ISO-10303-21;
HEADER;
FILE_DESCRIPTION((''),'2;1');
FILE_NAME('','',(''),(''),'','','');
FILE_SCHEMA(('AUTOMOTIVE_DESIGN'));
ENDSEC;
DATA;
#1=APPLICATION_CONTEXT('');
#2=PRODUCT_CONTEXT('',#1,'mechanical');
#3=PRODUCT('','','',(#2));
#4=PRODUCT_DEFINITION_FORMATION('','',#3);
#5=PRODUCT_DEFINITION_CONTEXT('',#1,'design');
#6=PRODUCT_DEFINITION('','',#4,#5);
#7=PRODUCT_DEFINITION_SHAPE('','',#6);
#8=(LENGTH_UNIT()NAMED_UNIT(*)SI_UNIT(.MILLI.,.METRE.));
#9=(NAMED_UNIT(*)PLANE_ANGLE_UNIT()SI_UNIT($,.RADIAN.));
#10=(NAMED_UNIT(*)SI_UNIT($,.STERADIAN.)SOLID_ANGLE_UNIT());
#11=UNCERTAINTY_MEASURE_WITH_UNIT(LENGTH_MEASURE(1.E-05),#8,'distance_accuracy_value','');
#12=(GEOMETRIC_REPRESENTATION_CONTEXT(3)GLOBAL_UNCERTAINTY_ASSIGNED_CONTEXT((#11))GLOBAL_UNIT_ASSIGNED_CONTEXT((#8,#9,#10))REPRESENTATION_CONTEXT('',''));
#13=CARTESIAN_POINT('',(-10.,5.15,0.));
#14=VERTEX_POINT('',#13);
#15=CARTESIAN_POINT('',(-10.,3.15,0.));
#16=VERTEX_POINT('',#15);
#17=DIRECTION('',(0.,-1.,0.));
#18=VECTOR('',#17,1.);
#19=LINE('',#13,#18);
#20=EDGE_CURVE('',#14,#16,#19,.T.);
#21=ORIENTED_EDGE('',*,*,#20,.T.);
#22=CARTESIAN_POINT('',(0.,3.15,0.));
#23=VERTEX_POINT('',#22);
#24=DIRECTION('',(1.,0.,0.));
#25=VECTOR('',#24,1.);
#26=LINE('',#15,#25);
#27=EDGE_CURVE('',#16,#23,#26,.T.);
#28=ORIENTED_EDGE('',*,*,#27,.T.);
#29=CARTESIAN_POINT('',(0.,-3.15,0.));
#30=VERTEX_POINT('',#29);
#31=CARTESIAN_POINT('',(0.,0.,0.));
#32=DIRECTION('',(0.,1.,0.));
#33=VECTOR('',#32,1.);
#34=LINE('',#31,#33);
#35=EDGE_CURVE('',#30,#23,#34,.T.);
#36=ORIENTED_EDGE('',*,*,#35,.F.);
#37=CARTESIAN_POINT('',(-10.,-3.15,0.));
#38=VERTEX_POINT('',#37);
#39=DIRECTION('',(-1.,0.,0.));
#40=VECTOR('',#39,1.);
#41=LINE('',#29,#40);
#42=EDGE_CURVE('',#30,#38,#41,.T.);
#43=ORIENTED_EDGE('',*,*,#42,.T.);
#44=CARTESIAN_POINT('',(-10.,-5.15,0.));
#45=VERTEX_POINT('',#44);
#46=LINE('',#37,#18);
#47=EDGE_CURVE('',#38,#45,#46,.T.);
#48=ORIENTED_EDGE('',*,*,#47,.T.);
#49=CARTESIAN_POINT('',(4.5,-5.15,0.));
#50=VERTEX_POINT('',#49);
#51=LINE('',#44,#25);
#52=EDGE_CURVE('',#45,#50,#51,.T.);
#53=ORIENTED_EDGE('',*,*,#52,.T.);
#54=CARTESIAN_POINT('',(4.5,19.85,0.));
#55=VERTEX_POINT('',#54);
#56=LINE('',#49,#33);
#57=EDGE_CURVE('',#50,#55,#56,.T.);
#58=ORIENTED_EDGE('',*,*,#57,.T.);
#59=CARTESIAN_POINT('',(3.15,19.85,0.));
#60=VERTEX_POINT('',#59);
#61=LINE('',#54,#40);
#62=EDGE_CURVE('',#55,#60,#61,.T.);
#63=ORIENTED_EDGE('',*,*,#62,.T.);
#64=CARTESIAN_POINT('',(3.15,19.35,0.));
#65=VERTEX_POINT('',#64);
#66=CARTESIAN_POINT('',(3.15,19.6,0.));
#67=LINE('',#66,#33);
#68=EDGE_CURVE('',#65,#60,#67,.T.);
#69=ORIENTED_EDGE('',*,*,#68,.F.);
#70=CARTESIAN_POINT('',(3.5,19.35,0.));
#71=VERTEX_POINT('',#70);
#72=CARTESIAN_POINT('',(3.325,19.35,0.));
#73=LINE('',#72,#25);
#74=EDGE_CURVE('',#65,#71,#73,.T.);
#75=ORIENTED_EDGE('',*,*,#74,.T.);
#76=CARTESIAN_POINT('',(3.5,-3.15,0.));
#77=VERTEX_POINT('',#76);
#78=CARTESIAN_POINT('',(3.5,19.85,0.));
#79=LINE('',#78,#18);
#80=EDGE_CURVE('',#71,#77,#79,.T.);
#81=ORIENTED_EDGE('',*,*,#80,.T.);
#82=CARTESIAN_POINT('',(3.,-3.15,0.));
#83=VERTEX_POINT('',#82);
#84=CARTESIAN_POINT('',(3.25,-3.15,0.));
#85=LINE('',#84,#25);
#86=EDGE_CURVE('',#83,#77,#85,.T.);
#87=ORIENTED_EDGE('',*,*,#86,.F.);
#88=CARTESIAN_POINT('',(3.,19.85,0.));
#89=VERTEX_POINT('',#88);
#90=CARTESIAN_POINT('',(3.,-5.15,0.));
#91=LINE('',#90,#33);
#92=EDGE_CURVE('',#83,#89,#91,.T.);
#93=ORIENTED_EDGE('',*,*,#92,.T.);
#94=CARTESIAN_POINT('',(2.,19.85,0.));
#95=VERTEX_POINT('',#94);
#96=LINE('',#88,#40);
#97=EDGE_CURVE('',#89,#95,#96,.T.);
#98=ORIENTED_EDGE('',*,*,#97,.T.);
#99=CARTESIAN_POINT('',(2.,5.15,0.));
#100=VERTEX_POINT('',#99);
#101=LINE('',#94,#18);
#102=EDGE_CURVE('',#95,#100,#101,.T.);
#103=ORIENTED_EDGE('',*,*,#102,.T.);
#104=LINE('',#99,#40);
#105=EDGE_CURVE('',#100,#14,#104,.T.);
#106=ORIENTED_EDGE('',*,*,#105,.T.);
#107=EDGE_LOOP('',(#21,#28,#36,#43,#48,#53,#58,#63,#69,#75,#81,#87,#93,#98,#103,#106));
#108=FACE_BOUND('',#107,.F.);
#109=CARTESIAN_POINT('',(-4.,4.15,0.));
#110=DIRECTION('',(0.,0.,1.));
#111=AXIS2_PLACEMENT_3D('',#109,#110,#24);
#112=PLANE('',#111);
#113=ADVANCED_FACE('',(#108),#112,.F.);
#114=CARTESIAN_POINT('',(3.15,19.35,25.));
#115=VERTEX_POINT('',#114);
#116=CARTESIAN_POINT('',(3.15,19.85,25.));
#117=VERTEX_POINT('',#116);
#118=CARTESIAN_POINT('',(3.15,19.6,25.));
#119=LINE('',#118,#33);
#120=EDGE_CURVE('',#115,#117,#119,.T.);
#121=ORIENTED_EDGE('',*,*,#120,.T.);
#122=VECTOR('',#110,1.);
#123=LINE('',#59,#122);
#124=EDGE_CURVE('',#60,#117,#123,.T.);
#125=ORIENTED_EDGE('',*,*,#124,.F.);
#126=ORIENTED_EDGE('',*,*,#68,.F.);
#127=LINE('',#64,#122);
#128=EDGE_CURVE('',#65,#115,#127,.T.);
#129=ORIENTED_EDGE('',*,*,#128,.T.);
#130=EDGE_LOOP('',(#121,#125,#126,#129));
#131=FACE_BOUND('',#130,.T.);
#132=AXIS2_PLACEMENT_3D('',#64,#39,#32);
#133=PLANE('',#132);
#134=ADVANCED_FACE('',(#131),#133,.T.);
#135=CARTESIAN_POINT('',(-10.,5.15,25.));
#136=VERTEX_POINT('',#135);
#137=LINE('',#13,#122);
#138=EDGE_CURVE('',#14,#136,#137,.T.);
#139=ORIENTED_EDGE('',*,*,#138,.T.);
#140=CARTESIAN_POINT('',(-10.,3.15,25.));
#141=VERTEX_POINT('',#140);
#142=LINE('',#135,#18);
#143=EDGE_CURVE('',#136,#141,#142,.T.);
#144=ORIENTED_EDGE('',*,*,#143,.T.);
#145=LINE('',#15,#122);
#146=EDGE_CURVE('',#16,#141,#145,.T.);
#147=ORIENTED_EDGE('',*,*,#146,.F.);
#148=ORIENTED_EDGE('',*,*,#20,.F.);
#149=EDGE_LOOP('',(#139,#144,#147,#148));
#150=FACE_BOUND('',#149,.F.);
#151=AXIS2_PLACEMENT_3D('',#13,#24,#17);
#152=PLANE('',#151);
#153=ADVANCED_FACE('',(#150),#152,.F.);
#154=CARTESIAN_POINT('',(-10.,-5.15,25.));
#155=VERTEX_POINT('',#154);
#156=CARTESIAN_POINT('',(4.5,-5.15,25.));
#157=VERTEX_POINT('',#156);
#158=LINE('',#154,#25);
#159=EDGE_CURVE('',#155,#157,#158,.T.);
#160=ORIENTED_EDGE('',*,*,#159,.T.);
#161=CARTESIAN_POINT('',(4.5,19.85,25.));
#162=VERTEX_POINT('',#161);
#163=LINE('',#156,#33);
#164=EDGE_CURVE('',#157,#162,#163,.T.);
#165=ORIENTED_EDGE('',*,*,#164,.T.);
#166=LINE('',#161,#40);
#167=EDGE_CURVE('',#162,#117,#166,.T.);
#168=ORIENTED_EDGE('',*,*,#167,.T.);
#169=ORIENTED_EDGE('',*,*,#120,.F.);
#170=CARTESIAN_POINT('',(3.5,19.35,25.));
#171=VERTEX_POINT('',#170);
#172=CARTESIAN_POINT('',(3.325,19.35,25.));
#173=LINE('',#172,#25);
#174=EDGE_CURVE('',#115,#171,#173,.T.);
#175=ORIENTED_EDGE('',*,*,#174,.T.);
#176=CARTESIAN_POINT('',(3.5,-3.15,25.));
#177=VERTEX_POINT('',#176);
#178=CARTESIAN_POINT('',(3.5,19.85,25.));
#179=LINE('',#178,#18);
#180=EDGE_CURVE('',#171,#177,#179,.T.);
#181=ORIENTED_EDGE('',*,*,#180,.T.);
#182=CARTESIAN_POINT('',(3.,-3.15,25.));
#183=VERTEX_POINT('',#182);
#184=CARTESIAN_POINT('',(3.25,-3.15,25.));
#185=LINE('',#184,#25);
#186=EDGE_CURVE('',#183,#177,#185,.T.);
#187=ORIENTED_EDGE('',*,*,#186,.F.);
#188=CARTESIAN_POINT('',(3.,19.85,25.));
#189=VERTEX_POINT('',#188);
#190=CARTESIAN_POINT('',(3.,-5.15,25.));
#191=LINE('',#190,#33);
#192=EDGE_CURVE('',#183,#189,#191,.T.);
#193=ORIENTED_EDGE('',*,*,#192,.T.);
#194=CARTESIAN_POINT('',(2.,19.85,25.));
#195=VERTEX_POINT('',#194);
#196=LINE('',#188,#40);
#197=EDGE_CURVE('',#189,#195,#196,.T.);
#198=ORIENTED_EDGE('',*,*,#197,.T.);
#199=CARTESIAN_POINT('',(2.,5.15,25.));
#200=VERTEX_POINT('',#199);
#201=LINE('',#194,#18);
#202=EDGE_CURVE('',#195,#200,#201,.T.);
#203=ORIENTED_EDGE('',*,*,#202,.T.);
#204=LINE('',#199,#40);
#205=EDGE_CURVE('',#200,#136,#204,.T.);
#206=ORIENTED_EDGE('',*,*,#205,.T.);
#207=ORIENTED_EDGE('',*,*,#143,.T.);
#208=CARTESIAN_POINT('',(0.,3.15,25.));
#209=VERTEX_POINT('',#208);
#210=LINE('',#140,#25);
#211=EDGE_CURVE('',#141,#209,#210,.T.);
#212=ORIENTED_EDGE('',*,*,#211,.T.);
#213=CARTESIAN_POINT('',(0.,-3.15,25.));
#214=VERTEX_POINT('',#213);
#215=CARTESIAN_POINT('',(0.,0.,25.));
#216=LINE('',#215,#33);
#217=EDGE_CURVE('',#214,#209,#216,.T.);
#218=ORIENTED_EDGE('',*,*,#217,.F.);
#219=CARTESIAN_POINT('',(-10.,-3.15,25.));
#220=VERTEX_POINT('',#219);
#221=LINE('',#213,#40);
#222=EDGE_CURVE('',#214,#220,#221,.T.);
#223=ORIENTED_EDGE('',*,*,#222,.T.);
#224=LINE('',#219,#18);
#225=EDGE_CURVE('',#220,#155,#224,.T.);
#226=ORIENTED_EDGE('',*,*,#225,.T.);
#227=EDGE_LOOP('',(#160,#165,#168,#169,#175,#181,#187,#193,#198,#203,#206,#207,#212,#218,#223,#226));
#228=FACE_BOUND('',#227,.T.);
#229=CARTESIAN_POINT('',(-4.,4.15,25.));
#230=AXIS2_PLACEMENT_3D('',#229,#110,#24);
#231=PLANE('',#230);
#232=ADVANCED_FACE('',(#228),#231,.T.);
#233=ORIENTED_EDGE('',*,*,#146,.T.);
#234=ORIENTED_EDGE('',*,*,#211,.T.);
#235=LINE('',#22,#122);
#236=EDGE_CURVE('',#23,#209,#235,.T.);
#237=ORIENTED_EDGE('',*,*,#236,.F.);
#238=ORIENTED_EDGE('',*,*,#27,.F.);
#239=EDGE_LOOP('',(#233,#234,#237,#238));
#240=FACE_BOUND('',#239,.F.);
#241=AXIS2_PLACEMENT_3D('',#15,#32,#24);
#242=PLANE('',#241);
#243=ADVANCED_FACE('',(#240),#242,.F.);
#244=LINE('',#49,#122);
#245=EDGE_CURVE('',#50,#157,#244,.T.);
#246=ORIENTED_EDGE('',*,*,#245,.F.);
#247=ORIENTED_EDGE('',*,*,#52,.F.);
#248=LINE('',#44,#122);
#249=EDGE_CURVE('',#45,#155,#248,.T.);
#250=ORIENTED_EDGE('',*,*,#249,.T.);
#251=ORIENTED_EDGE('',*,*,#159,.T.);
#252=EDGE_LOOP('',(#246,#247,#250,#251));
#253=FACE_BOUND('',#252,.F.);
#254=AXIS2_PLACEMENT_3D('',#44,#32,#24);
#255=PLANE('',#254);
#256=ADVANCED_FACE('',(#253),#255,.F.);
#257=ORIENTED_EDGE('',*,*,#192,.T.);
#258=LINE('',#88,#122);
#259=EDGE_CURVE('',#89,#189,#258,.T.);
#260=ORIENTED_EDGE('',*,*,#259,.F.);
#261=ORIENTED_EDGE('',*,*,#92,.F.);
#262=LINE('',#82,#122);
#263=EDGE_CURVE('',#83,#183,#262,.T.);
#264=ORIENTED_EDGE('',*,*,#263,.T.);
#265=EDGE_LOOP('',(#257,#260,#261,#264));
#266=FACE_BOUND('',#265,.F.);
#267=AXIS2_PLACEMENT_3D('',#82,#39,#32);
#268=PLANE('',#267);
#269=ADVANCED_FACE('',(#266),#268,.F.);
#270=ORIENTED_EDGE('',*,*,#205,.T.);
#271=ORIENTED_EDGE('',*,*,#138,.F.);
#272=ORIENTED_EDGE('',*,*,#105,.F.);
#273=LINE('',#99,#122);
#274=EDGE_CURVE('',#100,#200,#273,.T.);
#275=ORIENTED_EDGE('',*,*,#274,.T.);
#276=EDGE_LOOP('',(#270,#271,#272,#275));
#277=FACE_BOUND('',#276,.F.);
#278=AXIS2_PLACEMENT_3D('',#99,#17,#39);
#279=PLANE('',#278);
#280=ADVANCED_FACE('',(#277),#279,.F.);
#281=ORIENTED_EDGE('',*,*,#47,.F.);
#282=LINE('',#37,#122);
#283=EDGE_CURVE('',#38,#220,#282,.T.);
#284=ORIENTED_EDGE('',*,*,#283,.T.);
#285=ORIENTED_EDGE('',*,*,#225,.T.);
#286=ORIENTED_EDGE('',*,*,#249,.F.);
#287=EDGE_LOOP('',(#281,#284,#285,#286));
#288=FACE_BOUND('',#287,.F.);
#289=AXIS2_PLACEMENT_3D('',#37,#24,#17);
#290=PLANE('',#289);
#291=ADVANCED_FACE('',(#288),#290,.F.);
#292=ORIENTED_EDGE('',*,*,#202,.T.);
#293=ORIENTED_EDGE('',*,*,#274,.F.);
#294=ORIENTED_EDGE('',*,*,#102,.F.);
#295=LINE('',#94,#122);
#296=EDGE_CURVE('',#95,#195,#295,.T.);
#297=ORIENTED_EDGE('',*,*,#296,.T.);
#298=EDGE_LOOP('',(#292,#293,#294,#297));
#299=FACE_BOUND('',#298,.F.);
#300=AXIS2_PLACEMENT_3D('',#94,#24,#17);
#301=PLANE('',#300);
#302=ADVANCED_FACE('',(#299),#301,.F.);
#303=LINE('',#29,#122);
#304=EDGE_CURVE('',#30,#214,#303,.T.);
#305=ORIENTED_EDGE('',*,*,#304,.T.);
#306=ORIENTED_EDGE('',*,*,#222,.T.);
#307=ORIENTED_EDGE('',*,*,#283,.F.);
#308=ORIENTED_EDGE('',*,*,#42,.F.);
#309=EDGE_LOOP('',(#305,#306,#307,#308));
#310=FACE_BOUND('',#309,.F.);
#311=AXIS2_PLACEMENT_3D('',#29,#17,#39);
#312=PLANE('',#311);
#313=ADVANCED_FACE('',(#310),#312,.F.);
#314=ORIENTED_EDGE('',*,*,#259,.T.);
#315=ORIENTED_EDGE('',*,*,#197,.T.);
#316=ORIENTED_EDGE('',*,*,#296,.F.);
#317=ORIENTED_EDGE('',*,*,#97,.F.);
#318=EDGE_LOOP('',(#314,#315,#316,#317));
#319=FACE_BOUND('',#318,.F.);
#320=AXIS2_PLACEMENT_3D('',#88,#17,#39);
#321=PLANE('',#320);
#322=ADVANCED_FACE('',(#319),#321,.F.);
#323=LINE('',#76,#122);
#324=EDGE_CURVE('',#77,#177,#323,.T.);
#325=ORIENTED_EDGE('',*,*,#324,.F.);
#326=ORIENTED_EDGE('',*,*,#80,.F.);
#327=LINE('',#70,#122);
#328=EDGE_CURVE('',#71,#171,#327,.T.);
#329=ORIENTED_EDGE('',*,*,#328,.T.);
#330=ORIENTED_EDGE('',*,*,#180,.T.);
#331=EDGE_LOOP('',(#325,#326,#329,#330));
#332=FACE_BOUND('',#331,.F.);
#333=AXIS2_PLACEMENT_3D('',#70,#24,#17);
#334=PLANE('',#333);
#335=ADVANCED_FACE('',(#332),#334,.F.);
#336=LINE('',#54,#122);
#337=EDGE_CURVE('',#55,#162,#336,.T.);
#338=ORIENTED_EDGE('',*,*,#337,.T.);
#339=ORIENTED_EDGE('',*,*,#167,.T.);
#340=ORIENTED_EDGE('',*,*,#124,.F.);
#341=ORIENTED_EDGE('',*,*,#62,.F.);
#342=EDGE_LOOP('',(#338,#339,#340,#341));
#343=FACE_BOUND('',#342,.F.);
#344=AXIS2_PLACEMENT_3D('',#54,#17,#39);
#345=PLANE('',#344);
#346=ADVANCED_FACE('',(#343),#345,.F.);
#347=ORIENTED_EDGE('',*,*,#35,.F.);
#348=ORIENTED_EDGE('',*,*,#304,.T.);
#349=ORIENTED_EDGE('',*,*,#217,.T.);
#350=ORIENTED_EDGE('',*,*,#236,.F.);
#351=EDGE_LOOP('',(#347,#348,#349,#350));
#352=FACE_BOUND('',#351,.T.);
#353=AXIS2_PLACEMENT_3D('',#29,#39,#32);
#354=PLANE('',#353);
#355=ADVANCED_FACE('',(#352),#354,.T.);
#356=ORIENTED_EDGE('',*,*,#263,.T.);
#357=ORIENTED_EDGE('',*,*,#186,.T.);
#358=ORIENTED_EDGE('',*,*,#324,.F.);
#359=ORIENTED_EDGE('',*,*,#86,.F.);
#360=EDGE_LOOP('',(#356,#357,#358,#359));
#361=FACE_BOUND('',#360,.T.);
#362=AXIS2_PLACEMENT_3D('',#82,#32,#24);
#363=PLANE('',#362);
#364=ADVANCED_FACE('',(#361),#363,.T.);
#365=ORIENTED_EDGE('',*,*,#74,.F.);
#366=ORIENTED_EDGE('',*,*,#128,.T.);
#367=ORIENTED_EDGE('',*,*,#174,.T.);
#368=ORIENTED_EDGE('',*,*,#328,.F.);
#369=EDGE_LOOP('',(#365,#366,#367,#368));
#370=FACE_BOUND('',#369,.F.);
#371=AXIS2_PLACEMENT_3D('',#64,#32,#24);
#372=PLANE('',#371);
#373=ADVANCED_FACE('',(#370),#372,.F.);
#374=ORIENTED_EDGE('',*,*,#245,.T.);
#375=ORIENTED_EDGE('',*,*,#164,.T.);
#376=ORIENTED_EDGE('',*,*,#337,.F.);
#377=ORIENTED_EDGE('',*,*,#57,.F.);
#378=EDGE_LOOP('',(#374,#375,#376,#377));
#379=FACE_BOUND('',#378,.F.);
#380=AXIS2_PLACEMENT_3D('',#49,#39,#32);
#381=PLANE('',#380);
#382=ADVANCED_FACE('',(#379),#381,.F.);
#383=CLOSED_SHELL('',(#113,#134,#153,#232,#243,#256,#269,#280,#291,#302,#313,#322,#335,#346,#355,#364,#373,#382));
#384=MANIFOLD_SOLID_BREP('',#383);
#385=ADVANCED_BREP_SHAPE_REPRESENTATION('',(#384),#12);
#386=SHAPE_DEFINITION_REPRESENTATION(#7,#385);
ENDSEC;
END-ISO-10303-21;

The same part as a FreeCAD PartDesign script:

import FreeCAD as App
import Part
import Sketcher

V = App.Vector
Q = App.Units.Quantity

doc = App.newDocument("Part")
body = doc.addObject("PartDesign::Body", "Body")

sketch1 = body.newObject("Sketcher::SketchObject", "Sketch")
sketch1.AttachmentSupport = (doc.getObject("XY_Plane"), [""])
sketch1.MapMode = "FlatFace"
sketch1.addGeometry([
    Part.LineSegment(V(2, 5.15, 0), V(-10, 5.15, 0)),
    Part.LineSegment(V(-10, 5.15, 0), V(-10, 3.15, 0)),
    Part.LineSegment(V(-10, 3.15, 0), V(0, 3.15, 0)),
    Part.LineSegment(V(0, 3.15, 0), V(0, -3.15, 0)),
    Part.LineSegment(V(0, -3.15, 0), V(-10, -3.15, 0)),
    Part.LineSegment(V(-10, -3.15, 0), V(-10, -5.15, 0)),
    Part.LineSegment(V(-10, -5.15, 0), V(4.5, -5.15, 0)),
    Part.LineSegment(V(4.5, -5.15, 0), V(4.5, 19.85, 0)),
    Part.LineSegment(V(4.5, 19.85, 0), V(3.15, 19.85, 0)),
    Part.LineSegment(V(3.15, 19.85, 0), V(3.15, 19.35, 0)),
    Part.LineSegment(V(3.15, 19.35, 0), V(3.5, 19.35, 0)),
    Part.LineSegment(V(3.5, 19.35, 0), V(3.5, -3.15, 0)),
    Part.LineSegment(V(3.5, -3.15, 0), V(3, -3.15, 0)),
    Part.LineSegment(V(3, -3.15, 0), V(3, 19.85, 0)),
    Part.LineSegment(V(3, 19.85, 0), V(2, 19.85, 0)),
    Part.LineSegment(V(2, 19.85, 0), V(2, 5.15, 0)),
], False)
sketch1.addConstraint([
    Sketcher.Constraint("Coincident", 0, 2, 1, 1),
    Sketcher.Constraint("Coincident", 1, 2, 2, 1),
    Sketcher.Constraint("Coincident", 2, 2, 3, 1),
    Sketcher.Constraint("Coincident", 3, 2, 4, 1),
    Sketcher.Constraint("Coincident", 4, 2, 5, 1),
    Sketcher.Constraint("Coincident", 5, 2, 6, 1),
    Sketcher.Constraint("Coincident", 6, 2, 7, 1),
    Sketcher.Constraint("Coincident", 7, 2, 8, 1),
    Sketcher.Constraint("Coincident", 8, 2, 9, 1),
    Sketcher.Constraint("Coincident", 9, 2, 10, 1),
    Sketcher.Constraint("Coincident", 10, 2, 11, 1),
    Sketcher.Constraint("Coincident", 11, 2, 12, 1),
    Sketcher.Constraint("Coincident", 12, 2, 13, 1),
    Sketcher.Constraint("Coincident", 13, 2, 14, 1),
    Sketcher.Constraint("Coincident", 14, 2, 15, 1),
    Sketcher.Constraint("Coincident", 15, 2, 0, 1),
    Sketcher.Constraint("Horizontal", 0),
    Sketcher.Constraint("Vertical", 1),
    Sketcher.Constraint("Horizontal", 2),
    Sketcher.Constraint("Vertical", 3),
    Sketcher.Constraint("Horizontal", 4),
    Sketcher.Constraint("Vertical", 5),
    Sketcher.Constraint("Horizontal", 6),
    Sketcher.Constraint("Vertical", 7),
    Sketcher.Constraint("Horizontal", 8),
    Sketcher.Constraint("Vertical", 9),
    Sketcher.Constraint("Horizontal", 10),
    Sketcher.Constraint("Vertical", 11),
    Sketcher.Constraint("Horizontal", 12),
    Sketcher.Constraint("Vertical", 13),
    Sketcher.Constraint("Horizontal", 14),
    Sketcher.Constraint("Vertical", 15),
    Sketcher.Constraint("Symmetric", 2, 2, 3, 2, -1, 1),
    Sketcher.Constraint("Symmetric", 0, 2, 5, 2, -1),
    Sketcher.Constraint("Horizontal", 4, 2, 11, 2),
    Sketcher.Constraint("Horizontal", 8, 2, 13, 2),
    Sketcher.Constraint("Equal", 12, 9),
    Sketcher.Constraint("DistanceX", 0, 2, 0, 1, Q("12 mm")),
    Sketcher.Constraint("DistanceX", 2, 1, 2, 2, Q("10 mm")),
    Sketcher.Constraint("DistanceX", 14, 2, 14, 1, Q("1 mm")),
    Sketcher.Constraint("DistanceY", 1, 2, 1, 1, Q("2 mm")),
    Sketcher.Constraint("DistanceY", 7, 1, 7, 2, Q("25 mm")),
    Sketcher.Constraint("DistanceX", 6, 1, 6, 2, Q("14.5 mm")),
    Sketcher.Constraint("DistanceX", 12, 2, 12, 1, Q("0.5 mm")),
    Sketcher.Constraint("DistanceY", 3, 2, 3, 1, Q("6.3 mm")),
    Sketcher.Constraint("DistanceX", 8, 2, 8, 1, Q("1.35 mm")),
])
pad1 = body.newObject("PartDesign::Pad", "Pad")
pad1.Profile = sketch1
pad1.Length = 25

doc.recompute()
